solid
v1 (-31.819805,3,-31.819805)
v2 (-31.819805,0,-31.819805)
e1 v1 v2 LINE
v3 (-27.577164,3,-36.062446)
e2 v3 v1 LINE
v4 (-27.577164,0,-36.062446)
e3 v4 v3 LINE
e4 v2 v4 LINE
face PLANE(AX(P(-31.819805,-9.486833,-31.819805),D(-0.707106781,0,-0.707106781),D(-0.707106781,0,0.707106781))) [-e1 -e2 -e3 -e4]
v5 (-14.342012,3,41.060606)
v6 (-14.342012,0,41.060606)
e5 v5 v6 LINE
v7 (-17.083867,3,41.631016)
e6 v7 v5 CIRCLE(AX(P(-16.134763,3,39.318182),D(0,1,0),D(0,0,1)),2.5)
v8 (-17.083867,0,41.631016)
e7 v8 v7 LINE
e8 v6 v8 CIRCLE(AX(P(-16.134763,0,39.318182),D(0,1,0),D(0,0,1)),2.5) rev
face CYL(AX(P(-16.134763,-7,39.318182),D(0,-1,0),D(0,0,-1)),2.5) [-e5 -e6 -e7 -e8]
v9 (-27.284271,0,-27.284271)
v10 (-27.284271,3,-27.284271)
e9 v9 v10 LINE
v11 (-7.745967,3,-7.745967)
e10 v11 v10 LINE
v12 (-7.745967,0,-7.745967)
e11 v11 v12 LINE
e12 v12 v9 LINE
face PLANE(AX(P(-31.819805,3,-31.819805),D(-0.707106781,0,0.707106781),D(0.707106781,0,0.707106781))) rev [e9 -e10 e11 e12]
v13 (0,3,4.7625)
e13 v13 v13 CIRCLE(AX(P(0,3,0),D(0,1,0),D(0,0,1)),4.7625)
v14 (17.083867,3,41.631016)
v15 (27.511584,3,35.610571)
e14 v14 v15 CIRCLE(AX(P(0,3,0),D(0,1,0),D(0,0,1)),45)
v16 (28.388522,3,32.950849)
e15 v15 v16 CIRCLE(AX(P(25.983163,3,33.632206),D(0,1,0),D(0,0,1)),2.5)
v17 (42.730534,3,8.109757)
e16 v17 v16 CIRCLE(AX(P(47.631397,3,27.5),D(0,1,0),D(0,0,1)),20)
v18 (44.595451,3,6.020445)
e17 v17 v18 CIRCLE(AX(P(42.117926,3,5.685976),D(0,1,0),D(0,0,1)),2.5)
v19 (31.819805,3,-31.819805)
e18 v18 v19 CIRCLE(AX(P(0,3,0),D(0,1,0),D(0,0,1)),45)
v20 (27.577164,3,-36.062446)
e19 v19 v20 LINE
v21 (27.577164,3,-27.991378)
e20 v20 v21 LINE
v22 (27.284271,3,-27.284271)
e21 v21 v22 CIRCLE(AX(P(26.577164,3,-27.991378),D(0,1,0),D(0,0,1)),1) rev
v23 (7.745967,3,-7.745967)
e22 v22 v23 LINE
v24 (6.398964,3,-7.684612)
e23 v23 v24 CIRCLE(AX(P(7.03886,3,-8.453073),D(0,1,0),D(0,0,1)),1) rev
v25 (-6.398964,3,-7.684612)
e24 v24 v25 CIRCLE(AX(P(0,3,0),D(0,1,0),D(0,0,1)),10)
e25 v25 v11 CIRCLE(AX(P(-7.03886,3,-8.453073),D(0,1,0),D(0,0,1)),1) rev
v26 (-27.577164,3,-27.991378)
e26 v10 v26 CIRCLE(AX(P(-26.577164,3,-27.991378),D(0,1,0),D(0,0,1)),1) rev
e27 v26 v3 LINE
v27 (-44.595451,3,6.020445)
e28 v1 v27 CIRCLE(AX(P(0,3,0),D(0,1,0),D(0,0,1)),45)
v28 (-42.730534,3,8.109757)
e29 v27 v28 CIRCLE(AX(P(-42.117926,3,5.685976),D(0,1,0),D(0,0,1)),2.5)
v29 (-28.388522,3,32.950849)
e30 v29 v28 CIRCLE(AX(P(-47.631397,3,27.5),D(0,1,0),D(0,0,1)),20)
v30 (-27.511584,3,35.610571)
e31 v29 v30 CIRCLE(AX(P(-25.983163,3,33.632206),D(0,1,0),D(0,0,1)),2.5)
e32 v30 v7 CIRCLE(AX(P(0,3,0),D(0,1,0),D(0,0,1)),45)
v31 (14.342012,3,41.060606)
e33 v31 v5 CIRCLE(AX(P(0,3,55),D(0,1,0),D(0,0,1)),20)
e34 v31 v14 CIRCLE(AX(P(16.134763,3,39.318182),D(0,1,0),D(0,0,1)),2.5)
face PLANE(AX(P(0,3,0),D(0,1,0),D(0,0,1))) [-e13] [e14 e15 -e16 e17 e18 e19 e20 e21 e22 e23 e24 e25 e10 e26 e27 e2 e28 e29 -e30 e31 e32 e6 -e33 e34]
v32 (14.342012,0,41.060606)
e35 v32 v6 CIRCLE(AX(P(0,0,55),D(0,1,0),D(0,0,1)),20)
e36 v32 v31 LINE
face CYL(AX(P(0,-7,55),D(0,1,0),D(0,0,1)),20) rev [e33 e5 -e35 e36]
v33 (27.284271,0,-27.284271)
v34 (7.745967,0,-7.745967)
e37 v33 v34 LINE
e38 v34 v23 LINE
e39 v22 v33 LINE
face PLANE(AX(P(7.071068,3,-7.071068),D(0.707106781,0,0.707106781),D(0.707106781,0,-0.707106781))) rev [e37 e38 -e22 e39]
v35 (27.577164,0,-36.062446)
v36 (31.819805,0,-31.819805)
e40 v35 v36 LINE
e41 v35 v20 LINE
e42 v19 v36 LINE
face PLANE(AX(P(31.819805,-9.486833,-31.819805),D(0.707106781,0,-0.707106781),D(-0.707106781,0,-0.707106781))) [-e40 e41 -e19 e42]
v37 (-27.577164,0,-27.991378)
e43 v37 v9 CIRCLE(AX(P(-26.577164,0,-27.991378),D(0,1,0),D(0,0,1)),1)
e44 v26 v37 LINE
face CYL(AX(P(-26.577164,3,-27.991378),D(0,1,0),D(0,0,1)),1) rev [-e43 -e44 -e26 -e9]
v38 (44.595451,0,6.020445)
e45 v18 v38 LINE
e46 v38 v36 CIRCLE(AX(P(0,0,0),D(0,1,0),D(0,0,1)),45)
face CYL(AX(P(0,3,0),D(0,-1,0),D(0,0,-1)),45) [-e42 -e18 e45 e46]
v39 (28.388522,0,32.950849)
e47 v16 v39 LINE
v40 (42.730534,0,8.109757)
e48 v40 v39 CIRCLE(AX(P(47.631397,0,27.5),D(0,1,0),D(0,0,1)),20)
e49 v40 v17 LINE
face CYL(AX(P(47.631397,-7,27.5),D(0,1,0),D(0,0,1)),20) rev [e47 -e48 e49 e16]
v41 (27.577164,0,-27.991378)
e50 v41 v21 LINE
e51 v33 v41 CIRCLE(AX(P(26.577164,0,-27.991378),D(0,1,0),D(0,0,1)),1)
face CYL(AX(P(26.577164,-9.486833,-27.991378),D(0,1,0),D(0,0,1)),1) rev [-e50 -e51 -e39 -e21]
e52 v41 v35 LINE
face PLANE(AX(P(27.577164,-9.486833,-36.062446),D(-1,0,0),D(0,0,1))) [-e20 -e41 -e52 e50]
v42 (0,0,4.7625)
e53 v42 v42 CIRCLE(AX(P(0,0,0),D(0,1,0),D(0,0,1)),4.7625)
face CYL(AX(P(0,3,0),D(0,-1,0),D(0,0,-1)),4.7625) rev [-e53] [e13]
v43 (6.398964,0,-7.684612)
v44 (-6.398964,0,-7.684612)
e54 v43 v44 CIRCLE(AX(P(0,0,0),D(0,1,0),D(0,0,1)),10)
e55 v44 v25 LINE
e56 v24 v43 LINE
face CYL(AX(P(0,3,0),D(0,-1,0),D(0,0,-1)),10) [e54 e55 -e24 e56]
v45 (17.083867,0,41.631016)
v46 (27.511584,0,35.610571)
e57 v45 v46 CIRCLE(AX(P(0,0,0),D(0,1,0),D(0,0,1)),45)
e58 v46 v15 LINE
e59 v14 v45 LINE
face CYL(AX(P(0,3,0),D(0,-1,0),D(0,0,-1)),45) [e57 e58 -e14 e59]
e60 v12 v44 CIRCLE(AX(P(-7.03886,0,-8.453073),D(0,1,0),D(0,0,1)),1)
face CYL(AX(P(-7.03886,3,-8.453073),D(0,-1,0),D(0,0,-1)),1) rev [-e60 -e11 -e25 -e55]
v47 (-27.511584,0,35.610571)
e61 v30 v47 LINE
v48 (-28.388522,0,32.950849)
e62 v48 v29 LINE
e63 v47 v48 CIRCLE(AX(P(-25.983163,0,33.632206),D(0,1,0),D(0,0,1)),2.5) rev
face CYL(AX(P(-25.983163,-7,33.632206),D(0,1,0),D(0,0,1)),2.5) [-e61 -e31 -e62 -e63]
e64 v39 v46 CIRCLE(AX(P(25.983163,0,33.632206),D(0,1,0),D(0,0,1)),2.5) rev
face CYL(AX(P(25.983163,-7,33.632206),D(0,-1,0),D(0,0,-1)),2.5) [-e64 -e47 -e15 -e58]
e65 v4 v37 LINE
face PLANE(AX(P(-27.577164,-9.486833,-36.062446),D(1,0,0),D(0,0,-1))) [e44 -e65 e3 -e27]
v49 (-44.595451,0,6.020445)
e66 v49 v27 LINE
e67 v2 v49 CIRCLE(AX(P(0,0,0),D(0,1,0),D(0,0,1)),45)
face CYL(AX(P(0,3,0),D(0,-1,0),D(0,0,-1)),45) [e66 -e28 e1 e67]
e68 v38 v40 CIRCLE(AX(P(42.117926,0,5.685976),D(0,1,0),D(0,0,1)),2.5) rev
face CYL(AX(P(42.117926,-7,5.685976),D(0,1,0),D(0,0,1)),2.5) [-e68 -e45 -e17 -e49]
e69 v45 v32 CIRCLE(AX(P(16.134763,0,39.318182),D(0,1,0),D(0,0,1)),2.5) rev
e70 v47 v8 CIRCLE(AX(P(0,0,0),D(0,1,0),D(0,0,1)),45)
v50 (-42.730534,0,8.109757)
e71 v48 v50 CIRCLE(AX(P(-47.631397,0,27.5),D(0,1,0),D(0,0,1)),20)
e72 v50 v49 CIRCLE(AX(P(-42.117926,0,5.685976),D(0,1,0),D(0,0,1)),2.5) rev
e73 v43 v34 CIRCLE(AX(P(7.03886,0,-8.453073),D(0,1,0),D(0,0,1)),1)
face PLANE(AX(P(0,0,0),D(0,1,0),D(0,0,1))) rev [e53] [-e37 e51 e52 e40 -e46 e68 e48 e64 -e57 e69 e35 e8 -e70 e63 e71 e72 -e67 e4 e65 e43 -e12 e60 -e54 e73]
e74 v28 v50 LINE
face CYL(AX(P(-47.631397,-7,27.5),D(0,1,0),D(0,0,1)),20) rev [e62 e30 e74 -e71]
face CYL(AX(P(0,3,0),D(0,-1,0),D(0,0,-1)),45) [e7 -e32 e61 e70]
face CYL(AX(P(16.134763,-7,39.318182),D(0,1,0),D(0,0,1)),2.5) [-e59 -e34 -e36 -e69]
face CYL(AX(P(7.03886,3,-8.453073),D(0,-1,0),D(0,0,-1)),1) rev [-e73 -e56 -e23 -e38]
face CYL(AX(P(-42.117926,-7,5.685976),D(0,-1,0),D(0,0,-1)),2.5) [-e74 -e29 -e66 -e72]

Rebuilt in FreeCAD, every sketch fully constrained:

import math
import FreeCAD as App
import Part
import Sketcher
Q = App.Units.Quantity


def edges_at(feature, points):
    """Names of the edges that pass closest to the given points."""
    edges = feature.Shape.Edges
    near = lambda p: min(range(len(edges)), key=lambda i: edges[i].distToShape(Part.Vertex(*p))[0])
    return sorted({f"Edge{near(p) + 1}" for p in points})


def add_polygon(sketch, points):
    """Adds a closed chain of lines whose ends are joined by coincident constraints."""
    first, n = sketch.GeometryCount, len(points)
    for a, b in zip(points, points[1:] + points[:1]):
        sketch.addGeometry(Part.LineSegment(App.Vector(*a, 0), App.Vector(*b, 0)), False)
    for i in range(n):
        sketch.addConstraint(Sketcher.Constraint("Coincident", first + i, 2, first + (i + 1) % n, 1))

doc = App.newDocument("Part")
params = doc.addObject("Spreadsheet::Sheet", "Params")
for row, (alias, value) in enumerate([
    ("sketch1_radius", "45 mm"),
    ("sketch1_radius2", "10 mm"),
    ("pad1_length", "3 mm"),
    ("sketch2_length", "6 mm"),
    ("pad2_length", "3 mm"),
    ("fillet_radius", "1 mm"),
    ("sketch3_diameter", "40 mm"),
    ("pocket1_length", "10 mm"),
    ("fillet2_radius", "2.5 mm"),
], start=1):
    params.set(f"A{row}", alias)
    params.set(f"B{row}", "=" + value)
    params.setAlias(f"B{row}", alias)

body = doc.addObject("PartDesign::Body", "Body")

# Sketch on XZ plane
sketch1 = body.newObject("Sketcher::SketchObject", "Sketch")
sketch1.AttachmentSupport = (doc.getObject("XZ_Plane"), [""])
sketch1.MapMode = "FlatFace"
sketch1.addGeometry(Part.LineSegment(App.Vector(-7.1, -7.1, 0), App.Vector(-31.8, -31.8, 0)), False)
sketch1.addGeometry(Part.ArcOfCircle(Part.Circle(App.Vector(0, 0, 0), App.Vector(0, 0, 1), 45), math.radians(-45), math.radians(225)), False)
sketch1.addGeometry(Part.LineSegment(App.Vector(31.8, -31.8, 0), App.Vector(7.1, -7.1, 0)), False)
sketch1.addGeometry(Part.ArcOfCircle(Part.Circle(App.Vector(0, 0, 0), App.Vector(0, 0, 1), 10), math.radians(-135), math.radians(-45)), False)
sketch1.addGeometry(Part.Circle(App.Vector(0, 0, 0), App.Vector(0, 0, 1), 4.8), False)
sketch1.addConstraint(Sketcher.Constraint("Coincident", 0, 2, 1, 2))
sketch1.addConstraint(Sketcher.Constraint("Coincident", 1, 1, 2, 1))
sketch1.addConstraint(Sketcher.Constraint("Coincident", 2, 2, 3, 2))
sketch1.addConstraint(Sketcher.Constraint("Coincident", 3, 1, 0, 1))
sketch1.addConstraint(Sketcher.Constraint("Coincident", 1, 3, -1, 1))
sketch1.addConstraint(Sketcher.Constraint("Coincident", 3, 3, -1, 1))
sketch1.addConstraint(Sketcher.Constraint("Coincident", 4, 3, -1, 1))
sketch1.addConstraint(Sketcher.Constraint("Perpendicular", 0, 2))
sketch1.addConstraint(Sketcher.Constraint("Horizontal", 0, 2, 1, 1))
sketch1.addConstraint(Sketcher.Constraint("Horizontal", 2, 2, 3, 1))
sketch1.addConstraint(Sketcher.Constraint("Radius", 1, Q("45 mm")))
sketch1.addConstraint(Sketcher.Constraint("Radius", 3, Q("10 mm")))
sketch1.addConstraint(Sketcher.Constraint("Diameter", 4, Q("9.525 mm")))
sketch1.addConstraint(Sketcher.Constraint("DistanceX", 0, 2, 1, 1, Q("63.63961 mm")))
sketch1.setExpression("Constraints[10]", "Params.sketch1_radius")
sketch1.setExpression("Constraints[11]", "Params.sketch1_radius2")
pad1 = body.newObject("PartDesign::Pad", "Pad")
pad1.Profile = sketch1
pad1.setExpression("Length", "Params.pad1_length")
pad1.Reversed = True

# Sketch on XZ plane
sketch2 = body.newObject("Sketcher::SketchObject", "Sketch001")
sketch2.AttachmentSupport = (doc.getObject("XZ_Plane"), [""])
sketch2.MapMode = "FlatFace"
sketch2.AttachmentOffset = App.Placement(App.Vector(0, 0, -3), App.Rotation())
add_polygon(sketch2, [(-28, -36), (-32, -32), (-28, -28)])  # lines 0-2
add_polygon(sketch2, [(28, -28), (32, -32), (28, -36)])  # lines 3-5
sketch2.addConstraint(Sketcher.Constraint("Vertical", 2))
sketch2.addConstraint(Sketcher.Constraint("Vertical", 5))
sketch2.addConstraint(Sketcher.Constraint("Symmetric", 0, 2, 3, 2, -2))
sketch2.addConstraint(Sketcher.Constraint("Symmetric", 2, 2, 4, 2, -2))
sketch2.addConstraint(Sketcher.Constraint("Perpendicular", 0, 1))
sketch2.addConstraint(Sketcher.Constraint("Perpendicular", 1, 3))
sketch2.addConstraint(Sketcher.Constraint("Perpendicular", 3, 4))
sketch2.addConstraint(Sketcher.Constraint("Distance", 0, Q("6 mm")))
sketch2.addConstraint(Sketcher.Constraint("DistanceX", 1, 2, 3, 2, Q("59.39697 mm")))
sketch2.addConstraint(Sketcher.Constraint("DistanceY", 0, 2, -1, 1, Q("31.819805 mm")))
sketch2.setExpression("Constraints[13]", "Params.sketch2_length")
pad2 = body.newObject("PartDesign::Pad", "Pad001")
pad2.Profile = sketch2
pad2.setExpression("Length", "Params.pad2_length")
doc.recompute()

fillet = body.newObject("PartDesign::Fillet", "Fillet")
fillet.Base = (pad2, edges_at(pad2, [
    (-27.577, 1.5, -27.577),
    (27.577, 1.5, -27.577),
    (7.071, 1.5, -7.071),
    (-7.071, 1.5, -7.071),
]))
fillet.setExpression("Radius", "Params.fillet_radius")

# Sketch on XZ plane
sketch3 = body.newObject("Sketcher::SketchObject", "Sketch002")
sketch3.AttachmentSupport = (doc.getObject("XZ_Plane"), [""])
sketch3.MapMode = "FlatFace"
sketch3.AttachmentOffset = App.Placement(App.Vector(0, 0, -3), App.Rotation())
sketch3.addGeometry(Part.Circle(App.Vector(-48, 28, 0), App.Vector(0, 0, 1), 20), False)
sketch3.addGeometry(Part.Circle(App.Vector(48, 28, 0), App.Vector(0, 0, 1), 20), False)
sketch3.addGeometry(Part.Circle(App.Vector(0, 55, 0), App.Vector(0, 0, 1), 20), False)
sketch3.addConstraint(Sketcher.Constraint("Equal", 0, 1))
sketch3.addConstraint(Sketcher.Constraint("Equal", 1, 2))
sketch3.addConstraint(Sketcher.Constraint("Symmetric", 0, 3, 1, 3, -2))
sketch3.addConstraint(Sketcher.Constraint("PointOnObject", 2, 3, -2))
sketch3.addConstraint(Sketcher.Constraint("Diameter", 0, Q("40 mm")))
sketch3.addConstraint(Sketcher.Constraint("DistanceY", -1, 1, 2, 3, Q("55 mm")))
sketch3.addConstraint(Sketcher.Constraint("DistanceY", -1, 1, 0, 3, Q("27.5 mm")))
sketch3.addConstraint(Sketcher.Constraint("DistanceX", 0, 3, -1, 1, Q("47.631397 mm")))
sketch3.setExpression("Constraints[4]", "Params.sketch3_diameter")
pocket1 = body.newObject("PartDesign::Pocket", "Pocket")
pocket1.Profile = sketch3
pocket1.setExpression("Length", "Params.pocket1_length")
pocket1.Reversed = True
doc.recompute()

fillet2 = body.newObject("PartDesign::Fillet", "Fillet001")
fillet2.Base = (pocket1, edges_at(pocket1, [
    (15.428, 1.5, 42.273),
    (-15.428, 1.5, 42.273),
    (44.323, 1.5, 7.776),
    (28.895, 1.5, 34.497),
    (-28.895, 1.5, 34.497),
    (-44.323, 1.5, 7.776),
]))
fillet2.setExpression("Radius", "Params.fillet2_radius")

doc.recompute()
